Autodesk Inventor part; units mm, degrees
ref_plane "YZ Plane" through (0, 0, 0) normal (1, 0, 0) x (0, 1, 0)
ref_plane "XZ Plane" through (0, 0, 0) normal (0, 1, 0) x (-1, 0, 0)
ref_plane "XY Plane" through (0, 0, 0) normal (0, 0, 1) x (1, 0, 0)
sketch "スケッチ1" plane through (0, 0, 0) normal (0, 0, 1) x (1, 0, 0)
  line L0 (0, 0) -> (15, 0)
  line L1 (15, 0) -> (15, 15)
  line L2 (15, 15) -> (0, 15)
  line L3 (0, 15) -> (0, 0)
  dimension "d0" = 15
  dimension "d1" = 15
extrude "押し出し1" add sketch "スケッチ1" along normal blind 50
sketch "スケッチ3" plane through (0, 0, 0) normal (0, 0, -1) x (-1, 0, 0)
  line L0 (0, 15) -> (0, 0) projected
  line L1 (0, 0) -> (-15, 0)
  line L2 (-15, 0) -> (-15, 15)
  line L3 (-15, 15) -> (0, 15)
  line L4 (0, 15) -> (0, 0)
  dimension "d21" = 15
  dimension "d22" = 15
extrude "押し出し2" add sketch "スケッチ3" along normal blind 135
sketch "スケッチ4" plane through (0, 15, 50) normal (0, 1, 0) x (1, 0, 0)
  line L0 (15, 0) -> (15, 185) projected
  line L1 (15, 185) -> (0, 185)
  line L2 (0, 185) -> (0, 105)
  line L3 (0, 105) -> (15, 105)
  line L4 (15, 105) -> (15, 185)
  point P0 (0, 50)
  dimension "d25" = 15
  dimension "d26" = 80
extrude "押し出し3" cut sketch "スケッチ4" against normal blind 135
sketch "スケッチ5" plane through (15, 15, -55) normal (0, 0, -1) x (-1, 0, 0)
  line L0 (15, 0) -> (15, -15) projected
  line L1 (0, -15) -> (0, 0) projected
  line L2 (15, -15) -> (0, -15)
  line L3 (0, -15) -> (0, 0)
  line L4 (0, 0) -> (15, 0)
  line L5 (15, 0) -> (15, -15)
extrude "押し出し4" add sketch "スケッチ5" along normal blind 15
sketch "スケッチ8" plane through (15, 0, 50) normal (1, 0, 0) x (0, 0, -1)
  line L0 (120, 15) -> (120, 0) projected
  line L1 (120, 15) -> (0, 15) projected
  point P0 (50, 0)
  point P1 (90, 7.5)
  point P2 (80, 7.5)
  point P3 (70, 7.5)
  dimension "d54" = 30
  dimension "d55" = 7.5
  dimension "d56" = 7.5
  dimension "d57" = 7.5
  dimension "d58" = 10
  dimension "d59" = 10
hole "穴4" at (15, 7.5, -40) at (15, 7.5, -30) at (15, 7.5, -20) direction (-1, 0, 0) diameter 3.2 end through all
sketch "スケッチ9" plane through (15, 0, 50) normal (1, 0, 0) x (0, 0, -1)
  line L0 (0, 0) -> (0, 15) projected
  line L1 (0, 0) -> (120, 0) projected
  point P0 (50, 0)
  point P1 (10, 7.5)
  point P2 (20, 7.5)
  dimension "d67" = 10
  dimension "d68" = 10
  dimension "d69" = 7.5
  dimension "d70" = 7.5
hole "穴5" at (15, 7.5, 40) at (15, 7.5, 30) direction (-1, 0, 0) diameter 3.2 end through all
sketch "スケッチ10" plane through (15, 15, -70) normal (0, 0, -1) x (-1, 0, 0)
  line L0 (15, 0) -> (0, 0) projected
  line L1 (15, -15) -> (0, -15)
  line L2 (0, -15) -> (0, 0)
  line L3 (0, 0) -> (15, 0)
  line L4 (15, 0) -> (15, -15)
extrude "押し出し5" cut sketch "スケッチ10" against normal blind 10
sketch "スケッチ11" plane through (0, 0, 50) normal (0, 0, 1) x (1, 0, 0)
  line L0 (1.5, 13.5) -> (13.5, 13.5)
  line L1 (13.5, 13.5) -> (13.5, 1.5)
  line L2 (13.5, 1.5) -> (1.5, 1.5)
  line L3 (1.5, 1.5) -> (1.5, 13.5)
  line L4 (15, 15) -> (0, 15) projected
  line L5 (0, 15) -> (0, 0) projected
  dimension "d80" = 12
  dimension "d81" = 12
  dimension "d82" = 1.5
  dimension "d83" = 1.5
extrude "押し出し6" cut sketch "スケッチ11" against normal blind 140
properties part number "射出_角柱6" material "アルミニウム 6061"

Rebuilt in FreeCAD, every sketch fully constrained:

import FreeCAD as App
import Part
import Sketcher

doc = App.newDocument("Part")
body = doc.addObject("PartDesign::Body", "Body")

# Sketch on XY plane
sketch1 = body.newObject("Sketcher::SketchObject", "Sketch")
sketch1.AttachmentSupport = (doc.getObject("XY_Plane"), [""])
sketch1.MapMode = "FlatFace"
sketch1.addGeometry([
    Part.LineSegment(App.Vector(0, 15, 0), App.Vector(0, 0, 0)),
    Part.LineSegment(App.Vector(0, 0, 0), App.Vector(15, 0, 0)),
    Part.LineSegment(App.Vector(15, 0, 0), App.Vector(15, 15, 0)),
    Part.LineSegment(App.Vector(15, 15, 0), App.Vector(0, 15, 0)),
], False)
sketch1.addConstraint([
    Sketcher.Constraint("Coincident", 0, 2, 1, 1),
    Sketcher.Constraint("Coincident", 1, 2, 2, 1),
    Sketcher.Constraint("Coincident", 2, 2, 3, 1),
    Sketcher.Constraint("Coincident", 3, 2, 0, 1),
    Sketcher.Constraint("Vertical", 0),
    Sketcher.Constraint("Horizontal", 1),
    Sketcher.Constraint("Vertical", 2),
    Sketcher.Constraint("Horizontal", 3),
    Sketcher.Constraint("Coincident", 0, 2, -1, 1),
    Sketcher.Constraint("Equal", 3, 0),
    Sketcher.Constraint("DistanceX", 1, 1, 1, 2, 15.0),
])
pad1 = body.newObject("PartDesign::Pad", "Pad")
pad1.Profile = sketch1
pad1.Length = 50

# Sketch on XY plane
sketch2 = body.newObject("Sketcher::SketchObject", "Sketch001")
sketch2.AttachmentSupport = (doc.getObject("XY_Plane"), [""])
sketch2.MapMode = "FlatFace"
sketch2.addGeometry([
    Part.LineSegment(App.Vector(0, 0, 0), App.Vector(0, 15, 0)),
    Part.LineSegment(App.Vector(0, 15, 0), App.Vector(15, 15, 0)),
    Part.LineSegment(App.Vector(15, 15, 0), App.Vector(15, 0, 0)),
    Part.LineSegment(App.Vector(15, 0, 0), App.Vector(0, 0, 0)),
], False)
sketch2.addConstraint([
    Sketcher.Constraint("Coincident", 0, 2, 1, 1),
    Sketcher.Constraint("Coincident", 1, 2, 2, 1),
    Sketcher.Constraint("Coincident", 2, 2, 3, 1),
    Sketcher.Constraint("Coincident", 3, 2, 0, 1),
    Sketcher.Constraint("Vertical", 0),
    Sketcher.Constraint("Horizontal", 1),
    Sketcher.Constraint("Vertical", 2),
    Sketcher.Constraint("Horizontal", 3),
    Sketcher.Constraint("Coincident", 3, 2, -1, 1),
    Sketcher.Constraint("Equal", 3, 0),
    Sketcher.Constraint("DistanceX", 1, 1, 1, 2, 15.0),
])
pad2 = body.newObject("PartDesign::Pad", "Pad001")
pad2.Profile = sketch2
pad2.Length = 135
pad2.Reversed = True

# Sketch on XZ plane
sketch3 = body.newObject("Sketcher::SketchObject", "Sketch002")
sketch3.AttachmentSupport = (doc.getObject("XZ_Plane"), [""])
sketch3.MapMode = "FlatFace"
sketch3.AttachmentOffset = App.Placement(App.Vector(0, 0, -15), App.Rotation())
sketch3.addGeometry([
    Part.LineSegment(App.Vector(0, -55, 0), App.Vector(15, -55, 0)),
    Part.LineSegment(App.Vector(15, -55, 0), App.Vector(15, -135, 0)),
    Part.LineSegment(App.Vector(15, -135, 0), App.Vector(0, -135, 0)),
    Part.LineSegment(App.Vector(0, -135, 0), App.Vector(0, -55, 0)),
], False)
sketch3.addConstraint([
    Sketcher.Constraint("Coincident", 0, 2, 1, 1),
    Sketcher.Constraint("Coincident", 1, 2, 2, 1),
    Sketcher.Constraint("Coincident", 2, 2, 3, 1),
    Sketcher.Constraint("Coincident", 3, 2, 0, 1),
    Sketcher.Constraint("Horizontal", 0),
    Sketcher.Constraint("Vertical", 1),
    Sketcher.Constraint("Horizontal", 2),
    Sketcher.Constraint("Vertical", 3),
    Sketcher.Constraint("PointOnObject", 2, 2, -2),
    Sketcher.Constraint("DistanceX", 0, 1, 0, 2, 15.0),
    Sketcher.Constraint("DistanceY", 1, 2, 1, 1, 80.0),
    Sketcher.Constraint("DistanceY", 0, 2, -1, 1, 55.0),
])
pocket1 = body.newObject("PartDesign::Pocket", "Pocket")
pocket1.Profile = sketch3
pocket1.Length = 135
pocket1.Reversed = True

# Sketch on XY plane
sketch4 = body.newObject("Sketcher::SketchObject", "Sketch003")
sketch4.AttachmentSupport = (doc.getObject("XY_Plane"), [""])
sketch4.MapMode = "FlatFace"
sketch4.AttachmentOffset = App.Placement(App.Vector(0, 0, -55), App.Rotation())
sketch4.addGeometry([
    Part.LineSegment(App.Vector(0, 0, 0), App.Vector(0, 15, 0)),
    Part.LineSegment(App.Vector(0, 15, 0), App.Vector(15, 15, 0)),
    Part.LineSegment(App.Vector(15, 15, 0), App.Vector(15, 0, 0)),
    Part.LineSegment(App.Vector(15, 0, 0), App.Vector(0, 0, 0)),
], False)
sketch4.addConstraint([
    Sketcher.Constraint("Coincident", 0, 2, 1, 1),
    Sketcher.Constraint("Coincident", 1, 2, 2, 1),
    Sketcher.Constraint("Coincident", 2, 2, 3, 1),
    Sketcher.Constraint("Coincident", 3, 2, 0, 1),
    Sketcher.Constraint("Vertical", 0),
    Sketcher.Constraint("Horizontal", 1),
    Sketcher.Constraint("Vertical", 2),
    Sketcher.Constraint("Horizontal", 3),
    Sketcher.Constraint("Coincident", 3, 2, -1, 1),
    Sketcher.Constraint("Equal", 3, 0),
    Sketcher.Constraint("DistanceX", 1, 1, 1, 2, 15.0),
])
pad3 = body.newObject("PartDesign::Pad", "Pad002")
pad3.Profile = sketch4
pad3.Length = 15
pad3.Reversed = True

# Sketch on YZ plane
sketch5 = body.newObject("Sketcher::SketchObject", "Sketch004")
sketch5.AttachmentSupport = (doc.getObject("YZ_Plane"), [""])
sketch5.MapMode = "FlatFace"
sketch5.AttachmentOffset = App.Placement(App.Vector(0, 0, 15), App.Rotation())
sketch5.addGeometry([
    Part.Circle(App.Vector(7.5, -40, 0), App.Vector(0, 0, 1), 1.6),
    Part.Circle(App.Vector(7.5, -30, 0), App.Vector(0, 0, 1), 1.6),
    Part.Circle(App.Vector(7.5, -20, 0), App.Vector(0, 0, 1), 1.6),
], False)
sketch5.addConstraint([
    Sketcher.Constraint("Equal", 0, 1),
    Sketcher.Constraint("Equal", 1, 2),
    Sketcher.Constraint("Vertical", 0, 3, 1, 3),
    Sketcher.Constraint("Vertical", 1, 3, 2, 3),
    Sketcher.Constraint("Diameter", 0, 3.2),
    Sketcher.Constraint("DistanceY", 0, 3, -1, 1, 40.0),
    Sketcher.Constraint("DistanceY", 1, 3, -1, 1, 30.0),
    Sketcher.Constraint("DistanceY", 2, 3, -1, 1, 20.0),
    Sketcher.Constraint("DistanceX", -1, 1, 0, 3, 7.5),
])
doc.recompute()
hole = body.newObject("PartDesign::Hole", "Hole")
hole.Profile = sketch5
hole.ThreadType = "None"
hole.Diameter = 3.2
hole.DepthType = "ThroughAll"

# Sketch on YZ plane
sketch6 = body.newObject("Sketcher::SketchObject", "Sketch005")
sketch6.AttachmentSupport = (doc.getObject("YZ_Plane"), [""])
sketch6.MapMode = "FlatFace"
sketch6.AttachmentOffset = App.Placement(App.Vector(0, 0, 15), App.Rotation())
sketch6.addGeometry([
    Part.Circle(App.Vector(7.5, 40, 0), App.Vector(0, 0, 1), 1.6),
    Part.Circle(App.Vector(7.5, 30, 0), App.Vector(0, 0, 1), 1.6),
], False)
sketch6.addConstraint([
    Sketcher.Constraint("Equal", 0, 1),
    Sketcher.Constraint("Vertical", 0, 3, 1, 3),
    Sketcher.Constraint("Diameter", 0, 3.2),
    Sketcher.Constraint("DistanceY", -1, 1, 0, 3, 40.0),
    Sketcher.Constraint("DistanceY", -1, 1, 1, 3, 30.0),
    Sketcher.Constraint("DistanceX", -1, 1, 0, 3, 7.5),
])
doc.recompute()
hole2 = body.newObject("PartDesign::Hole", "Hole001")
hole2.Profile = sketch6
hole2.ThreadType = "None"
hole2.Diameter = 3.2
hole2.DepthType = "ThroughAll"

# Sketch on XY plane
sketch7 = body.newObject("Sketcher::SketchObject", "Sketch006")
sketch7.AttachmentSupport = (doc.getObject("XY_Plane"), [""])
sketch7.MapMode = "FlatFace"
sketch7.AttachmentOffset = App.Placement(App.Vector(0, 0, -70), App.Rotation())
sketch7.addGeometry([
    Part.LineSegment(App.Vector(0, 0, 0), App.Vector(0, 15, 0)),
    Part.LineSegment(App.Vector(0, 15, 0), App.Vector(15, 15, 0)),
    Part.LineSegment(App.Vector(15, 15, 0), App.Vector(15, 0, 0)),
    Part.LineSegment(App.Vector(15, 0, 0), App.Vector(0, 0, 0)),
], False)
sketch7.addConstraint([
    Sketcher.Constraint("Coincident", 0, 2, 1, 1),
    Sketcher.Constraint("Coincident", 1, 2, 2, 1),
    Sketcher.Constraint("Coincident", 2, 2, 3, 1),
    Sketcher.Constraint("Coincident", 3, 2, 0, 1),
    Sketcher.Constraint("Vertical", 0),
    Sketcher.Constraint("Horizontal", 1),
    Sketcher.Constraint("Vertical", 2),
    Sketcher.Constraint("Horizontal", 3),
    Sketcher.Constraint("Coincident", 3, 2, -1, 1),
    Sketcher.Constraint("Equal", 3, 0),
    Sketcher.Constraint("DistanceX", 1, 1, 1, 2, 15.0),
])
pocket2 = body.newObject("PartDesign::Pocket", "Pocket001")
pocket2.Profile = sketch7
pocket2.Length = 10
pocket2.Reversed = True

# Sketch on XY plane
sketch8 = body.newObject("Sketcher::SketchObject", "Sketch007")
sketch8.AttachmentSupport = (doc.getObject("XY_Plane"), [""])
sketch8.MapMode = "FlatFace"
sketch8.AttachmentOffset = App.Placement(App.Vector(0, 0, 50), App.Rotation())
sketch8.addGeometry([
    Part.LineSegment(App.Vector(13.5, 13.5, 0), App.Vector(1.5, 13.5, 0)),
    Part.LineSegment(App.Vector(1.5, 13.5, 0), App.Vector(1.5, 1.5, 0)),
    Part.LineSegment(App.Vector(1.5, 1.5, 0), App.Vector(13.5, 1.5, 0)),
    Part.LineSegment(App.Vector(13.5, 1.5, 0), App.Vector(13.5, 13.5, 0)),
], False)
sketch8.addConstraint([
    Sketcher.Constraint("Coincident", 0, 2, 1, 1),
    Sketcher.Constraint("Coincident", 1, 2, 2, 1),
    Sketcher.Constraint("Coincident", 2, 2, 3, 1),
    Sketcher.Constraint("Coincident", 3, 2, 0, 1),
    Sketcher.Constraint("Horizontal", 0),
    Sketcher.Constraint("Vertical", 1),
    Sketcher.Constraint("Horizontal", 2),
    Sketcher.Constraint("Vertical", 3),
    Sketcher.Constraint("Equal", 2, 1),
    Sketcher.Constraint("DistanceX", 0, 2, 0, 1, 12.0),
    Sketcher.Constraint("DistanceX", -1, 1, 0, 2, 1.5),
    Sketcher.Constraint("DistanceY", -1, 1, 1, 2, 1.5),
])
pocket3 = body.newObject("PartDesign::Pocket", "Pocket002")
pocket3.Profile = sketch8
pocket3.Length = 140

doc.recompute()
